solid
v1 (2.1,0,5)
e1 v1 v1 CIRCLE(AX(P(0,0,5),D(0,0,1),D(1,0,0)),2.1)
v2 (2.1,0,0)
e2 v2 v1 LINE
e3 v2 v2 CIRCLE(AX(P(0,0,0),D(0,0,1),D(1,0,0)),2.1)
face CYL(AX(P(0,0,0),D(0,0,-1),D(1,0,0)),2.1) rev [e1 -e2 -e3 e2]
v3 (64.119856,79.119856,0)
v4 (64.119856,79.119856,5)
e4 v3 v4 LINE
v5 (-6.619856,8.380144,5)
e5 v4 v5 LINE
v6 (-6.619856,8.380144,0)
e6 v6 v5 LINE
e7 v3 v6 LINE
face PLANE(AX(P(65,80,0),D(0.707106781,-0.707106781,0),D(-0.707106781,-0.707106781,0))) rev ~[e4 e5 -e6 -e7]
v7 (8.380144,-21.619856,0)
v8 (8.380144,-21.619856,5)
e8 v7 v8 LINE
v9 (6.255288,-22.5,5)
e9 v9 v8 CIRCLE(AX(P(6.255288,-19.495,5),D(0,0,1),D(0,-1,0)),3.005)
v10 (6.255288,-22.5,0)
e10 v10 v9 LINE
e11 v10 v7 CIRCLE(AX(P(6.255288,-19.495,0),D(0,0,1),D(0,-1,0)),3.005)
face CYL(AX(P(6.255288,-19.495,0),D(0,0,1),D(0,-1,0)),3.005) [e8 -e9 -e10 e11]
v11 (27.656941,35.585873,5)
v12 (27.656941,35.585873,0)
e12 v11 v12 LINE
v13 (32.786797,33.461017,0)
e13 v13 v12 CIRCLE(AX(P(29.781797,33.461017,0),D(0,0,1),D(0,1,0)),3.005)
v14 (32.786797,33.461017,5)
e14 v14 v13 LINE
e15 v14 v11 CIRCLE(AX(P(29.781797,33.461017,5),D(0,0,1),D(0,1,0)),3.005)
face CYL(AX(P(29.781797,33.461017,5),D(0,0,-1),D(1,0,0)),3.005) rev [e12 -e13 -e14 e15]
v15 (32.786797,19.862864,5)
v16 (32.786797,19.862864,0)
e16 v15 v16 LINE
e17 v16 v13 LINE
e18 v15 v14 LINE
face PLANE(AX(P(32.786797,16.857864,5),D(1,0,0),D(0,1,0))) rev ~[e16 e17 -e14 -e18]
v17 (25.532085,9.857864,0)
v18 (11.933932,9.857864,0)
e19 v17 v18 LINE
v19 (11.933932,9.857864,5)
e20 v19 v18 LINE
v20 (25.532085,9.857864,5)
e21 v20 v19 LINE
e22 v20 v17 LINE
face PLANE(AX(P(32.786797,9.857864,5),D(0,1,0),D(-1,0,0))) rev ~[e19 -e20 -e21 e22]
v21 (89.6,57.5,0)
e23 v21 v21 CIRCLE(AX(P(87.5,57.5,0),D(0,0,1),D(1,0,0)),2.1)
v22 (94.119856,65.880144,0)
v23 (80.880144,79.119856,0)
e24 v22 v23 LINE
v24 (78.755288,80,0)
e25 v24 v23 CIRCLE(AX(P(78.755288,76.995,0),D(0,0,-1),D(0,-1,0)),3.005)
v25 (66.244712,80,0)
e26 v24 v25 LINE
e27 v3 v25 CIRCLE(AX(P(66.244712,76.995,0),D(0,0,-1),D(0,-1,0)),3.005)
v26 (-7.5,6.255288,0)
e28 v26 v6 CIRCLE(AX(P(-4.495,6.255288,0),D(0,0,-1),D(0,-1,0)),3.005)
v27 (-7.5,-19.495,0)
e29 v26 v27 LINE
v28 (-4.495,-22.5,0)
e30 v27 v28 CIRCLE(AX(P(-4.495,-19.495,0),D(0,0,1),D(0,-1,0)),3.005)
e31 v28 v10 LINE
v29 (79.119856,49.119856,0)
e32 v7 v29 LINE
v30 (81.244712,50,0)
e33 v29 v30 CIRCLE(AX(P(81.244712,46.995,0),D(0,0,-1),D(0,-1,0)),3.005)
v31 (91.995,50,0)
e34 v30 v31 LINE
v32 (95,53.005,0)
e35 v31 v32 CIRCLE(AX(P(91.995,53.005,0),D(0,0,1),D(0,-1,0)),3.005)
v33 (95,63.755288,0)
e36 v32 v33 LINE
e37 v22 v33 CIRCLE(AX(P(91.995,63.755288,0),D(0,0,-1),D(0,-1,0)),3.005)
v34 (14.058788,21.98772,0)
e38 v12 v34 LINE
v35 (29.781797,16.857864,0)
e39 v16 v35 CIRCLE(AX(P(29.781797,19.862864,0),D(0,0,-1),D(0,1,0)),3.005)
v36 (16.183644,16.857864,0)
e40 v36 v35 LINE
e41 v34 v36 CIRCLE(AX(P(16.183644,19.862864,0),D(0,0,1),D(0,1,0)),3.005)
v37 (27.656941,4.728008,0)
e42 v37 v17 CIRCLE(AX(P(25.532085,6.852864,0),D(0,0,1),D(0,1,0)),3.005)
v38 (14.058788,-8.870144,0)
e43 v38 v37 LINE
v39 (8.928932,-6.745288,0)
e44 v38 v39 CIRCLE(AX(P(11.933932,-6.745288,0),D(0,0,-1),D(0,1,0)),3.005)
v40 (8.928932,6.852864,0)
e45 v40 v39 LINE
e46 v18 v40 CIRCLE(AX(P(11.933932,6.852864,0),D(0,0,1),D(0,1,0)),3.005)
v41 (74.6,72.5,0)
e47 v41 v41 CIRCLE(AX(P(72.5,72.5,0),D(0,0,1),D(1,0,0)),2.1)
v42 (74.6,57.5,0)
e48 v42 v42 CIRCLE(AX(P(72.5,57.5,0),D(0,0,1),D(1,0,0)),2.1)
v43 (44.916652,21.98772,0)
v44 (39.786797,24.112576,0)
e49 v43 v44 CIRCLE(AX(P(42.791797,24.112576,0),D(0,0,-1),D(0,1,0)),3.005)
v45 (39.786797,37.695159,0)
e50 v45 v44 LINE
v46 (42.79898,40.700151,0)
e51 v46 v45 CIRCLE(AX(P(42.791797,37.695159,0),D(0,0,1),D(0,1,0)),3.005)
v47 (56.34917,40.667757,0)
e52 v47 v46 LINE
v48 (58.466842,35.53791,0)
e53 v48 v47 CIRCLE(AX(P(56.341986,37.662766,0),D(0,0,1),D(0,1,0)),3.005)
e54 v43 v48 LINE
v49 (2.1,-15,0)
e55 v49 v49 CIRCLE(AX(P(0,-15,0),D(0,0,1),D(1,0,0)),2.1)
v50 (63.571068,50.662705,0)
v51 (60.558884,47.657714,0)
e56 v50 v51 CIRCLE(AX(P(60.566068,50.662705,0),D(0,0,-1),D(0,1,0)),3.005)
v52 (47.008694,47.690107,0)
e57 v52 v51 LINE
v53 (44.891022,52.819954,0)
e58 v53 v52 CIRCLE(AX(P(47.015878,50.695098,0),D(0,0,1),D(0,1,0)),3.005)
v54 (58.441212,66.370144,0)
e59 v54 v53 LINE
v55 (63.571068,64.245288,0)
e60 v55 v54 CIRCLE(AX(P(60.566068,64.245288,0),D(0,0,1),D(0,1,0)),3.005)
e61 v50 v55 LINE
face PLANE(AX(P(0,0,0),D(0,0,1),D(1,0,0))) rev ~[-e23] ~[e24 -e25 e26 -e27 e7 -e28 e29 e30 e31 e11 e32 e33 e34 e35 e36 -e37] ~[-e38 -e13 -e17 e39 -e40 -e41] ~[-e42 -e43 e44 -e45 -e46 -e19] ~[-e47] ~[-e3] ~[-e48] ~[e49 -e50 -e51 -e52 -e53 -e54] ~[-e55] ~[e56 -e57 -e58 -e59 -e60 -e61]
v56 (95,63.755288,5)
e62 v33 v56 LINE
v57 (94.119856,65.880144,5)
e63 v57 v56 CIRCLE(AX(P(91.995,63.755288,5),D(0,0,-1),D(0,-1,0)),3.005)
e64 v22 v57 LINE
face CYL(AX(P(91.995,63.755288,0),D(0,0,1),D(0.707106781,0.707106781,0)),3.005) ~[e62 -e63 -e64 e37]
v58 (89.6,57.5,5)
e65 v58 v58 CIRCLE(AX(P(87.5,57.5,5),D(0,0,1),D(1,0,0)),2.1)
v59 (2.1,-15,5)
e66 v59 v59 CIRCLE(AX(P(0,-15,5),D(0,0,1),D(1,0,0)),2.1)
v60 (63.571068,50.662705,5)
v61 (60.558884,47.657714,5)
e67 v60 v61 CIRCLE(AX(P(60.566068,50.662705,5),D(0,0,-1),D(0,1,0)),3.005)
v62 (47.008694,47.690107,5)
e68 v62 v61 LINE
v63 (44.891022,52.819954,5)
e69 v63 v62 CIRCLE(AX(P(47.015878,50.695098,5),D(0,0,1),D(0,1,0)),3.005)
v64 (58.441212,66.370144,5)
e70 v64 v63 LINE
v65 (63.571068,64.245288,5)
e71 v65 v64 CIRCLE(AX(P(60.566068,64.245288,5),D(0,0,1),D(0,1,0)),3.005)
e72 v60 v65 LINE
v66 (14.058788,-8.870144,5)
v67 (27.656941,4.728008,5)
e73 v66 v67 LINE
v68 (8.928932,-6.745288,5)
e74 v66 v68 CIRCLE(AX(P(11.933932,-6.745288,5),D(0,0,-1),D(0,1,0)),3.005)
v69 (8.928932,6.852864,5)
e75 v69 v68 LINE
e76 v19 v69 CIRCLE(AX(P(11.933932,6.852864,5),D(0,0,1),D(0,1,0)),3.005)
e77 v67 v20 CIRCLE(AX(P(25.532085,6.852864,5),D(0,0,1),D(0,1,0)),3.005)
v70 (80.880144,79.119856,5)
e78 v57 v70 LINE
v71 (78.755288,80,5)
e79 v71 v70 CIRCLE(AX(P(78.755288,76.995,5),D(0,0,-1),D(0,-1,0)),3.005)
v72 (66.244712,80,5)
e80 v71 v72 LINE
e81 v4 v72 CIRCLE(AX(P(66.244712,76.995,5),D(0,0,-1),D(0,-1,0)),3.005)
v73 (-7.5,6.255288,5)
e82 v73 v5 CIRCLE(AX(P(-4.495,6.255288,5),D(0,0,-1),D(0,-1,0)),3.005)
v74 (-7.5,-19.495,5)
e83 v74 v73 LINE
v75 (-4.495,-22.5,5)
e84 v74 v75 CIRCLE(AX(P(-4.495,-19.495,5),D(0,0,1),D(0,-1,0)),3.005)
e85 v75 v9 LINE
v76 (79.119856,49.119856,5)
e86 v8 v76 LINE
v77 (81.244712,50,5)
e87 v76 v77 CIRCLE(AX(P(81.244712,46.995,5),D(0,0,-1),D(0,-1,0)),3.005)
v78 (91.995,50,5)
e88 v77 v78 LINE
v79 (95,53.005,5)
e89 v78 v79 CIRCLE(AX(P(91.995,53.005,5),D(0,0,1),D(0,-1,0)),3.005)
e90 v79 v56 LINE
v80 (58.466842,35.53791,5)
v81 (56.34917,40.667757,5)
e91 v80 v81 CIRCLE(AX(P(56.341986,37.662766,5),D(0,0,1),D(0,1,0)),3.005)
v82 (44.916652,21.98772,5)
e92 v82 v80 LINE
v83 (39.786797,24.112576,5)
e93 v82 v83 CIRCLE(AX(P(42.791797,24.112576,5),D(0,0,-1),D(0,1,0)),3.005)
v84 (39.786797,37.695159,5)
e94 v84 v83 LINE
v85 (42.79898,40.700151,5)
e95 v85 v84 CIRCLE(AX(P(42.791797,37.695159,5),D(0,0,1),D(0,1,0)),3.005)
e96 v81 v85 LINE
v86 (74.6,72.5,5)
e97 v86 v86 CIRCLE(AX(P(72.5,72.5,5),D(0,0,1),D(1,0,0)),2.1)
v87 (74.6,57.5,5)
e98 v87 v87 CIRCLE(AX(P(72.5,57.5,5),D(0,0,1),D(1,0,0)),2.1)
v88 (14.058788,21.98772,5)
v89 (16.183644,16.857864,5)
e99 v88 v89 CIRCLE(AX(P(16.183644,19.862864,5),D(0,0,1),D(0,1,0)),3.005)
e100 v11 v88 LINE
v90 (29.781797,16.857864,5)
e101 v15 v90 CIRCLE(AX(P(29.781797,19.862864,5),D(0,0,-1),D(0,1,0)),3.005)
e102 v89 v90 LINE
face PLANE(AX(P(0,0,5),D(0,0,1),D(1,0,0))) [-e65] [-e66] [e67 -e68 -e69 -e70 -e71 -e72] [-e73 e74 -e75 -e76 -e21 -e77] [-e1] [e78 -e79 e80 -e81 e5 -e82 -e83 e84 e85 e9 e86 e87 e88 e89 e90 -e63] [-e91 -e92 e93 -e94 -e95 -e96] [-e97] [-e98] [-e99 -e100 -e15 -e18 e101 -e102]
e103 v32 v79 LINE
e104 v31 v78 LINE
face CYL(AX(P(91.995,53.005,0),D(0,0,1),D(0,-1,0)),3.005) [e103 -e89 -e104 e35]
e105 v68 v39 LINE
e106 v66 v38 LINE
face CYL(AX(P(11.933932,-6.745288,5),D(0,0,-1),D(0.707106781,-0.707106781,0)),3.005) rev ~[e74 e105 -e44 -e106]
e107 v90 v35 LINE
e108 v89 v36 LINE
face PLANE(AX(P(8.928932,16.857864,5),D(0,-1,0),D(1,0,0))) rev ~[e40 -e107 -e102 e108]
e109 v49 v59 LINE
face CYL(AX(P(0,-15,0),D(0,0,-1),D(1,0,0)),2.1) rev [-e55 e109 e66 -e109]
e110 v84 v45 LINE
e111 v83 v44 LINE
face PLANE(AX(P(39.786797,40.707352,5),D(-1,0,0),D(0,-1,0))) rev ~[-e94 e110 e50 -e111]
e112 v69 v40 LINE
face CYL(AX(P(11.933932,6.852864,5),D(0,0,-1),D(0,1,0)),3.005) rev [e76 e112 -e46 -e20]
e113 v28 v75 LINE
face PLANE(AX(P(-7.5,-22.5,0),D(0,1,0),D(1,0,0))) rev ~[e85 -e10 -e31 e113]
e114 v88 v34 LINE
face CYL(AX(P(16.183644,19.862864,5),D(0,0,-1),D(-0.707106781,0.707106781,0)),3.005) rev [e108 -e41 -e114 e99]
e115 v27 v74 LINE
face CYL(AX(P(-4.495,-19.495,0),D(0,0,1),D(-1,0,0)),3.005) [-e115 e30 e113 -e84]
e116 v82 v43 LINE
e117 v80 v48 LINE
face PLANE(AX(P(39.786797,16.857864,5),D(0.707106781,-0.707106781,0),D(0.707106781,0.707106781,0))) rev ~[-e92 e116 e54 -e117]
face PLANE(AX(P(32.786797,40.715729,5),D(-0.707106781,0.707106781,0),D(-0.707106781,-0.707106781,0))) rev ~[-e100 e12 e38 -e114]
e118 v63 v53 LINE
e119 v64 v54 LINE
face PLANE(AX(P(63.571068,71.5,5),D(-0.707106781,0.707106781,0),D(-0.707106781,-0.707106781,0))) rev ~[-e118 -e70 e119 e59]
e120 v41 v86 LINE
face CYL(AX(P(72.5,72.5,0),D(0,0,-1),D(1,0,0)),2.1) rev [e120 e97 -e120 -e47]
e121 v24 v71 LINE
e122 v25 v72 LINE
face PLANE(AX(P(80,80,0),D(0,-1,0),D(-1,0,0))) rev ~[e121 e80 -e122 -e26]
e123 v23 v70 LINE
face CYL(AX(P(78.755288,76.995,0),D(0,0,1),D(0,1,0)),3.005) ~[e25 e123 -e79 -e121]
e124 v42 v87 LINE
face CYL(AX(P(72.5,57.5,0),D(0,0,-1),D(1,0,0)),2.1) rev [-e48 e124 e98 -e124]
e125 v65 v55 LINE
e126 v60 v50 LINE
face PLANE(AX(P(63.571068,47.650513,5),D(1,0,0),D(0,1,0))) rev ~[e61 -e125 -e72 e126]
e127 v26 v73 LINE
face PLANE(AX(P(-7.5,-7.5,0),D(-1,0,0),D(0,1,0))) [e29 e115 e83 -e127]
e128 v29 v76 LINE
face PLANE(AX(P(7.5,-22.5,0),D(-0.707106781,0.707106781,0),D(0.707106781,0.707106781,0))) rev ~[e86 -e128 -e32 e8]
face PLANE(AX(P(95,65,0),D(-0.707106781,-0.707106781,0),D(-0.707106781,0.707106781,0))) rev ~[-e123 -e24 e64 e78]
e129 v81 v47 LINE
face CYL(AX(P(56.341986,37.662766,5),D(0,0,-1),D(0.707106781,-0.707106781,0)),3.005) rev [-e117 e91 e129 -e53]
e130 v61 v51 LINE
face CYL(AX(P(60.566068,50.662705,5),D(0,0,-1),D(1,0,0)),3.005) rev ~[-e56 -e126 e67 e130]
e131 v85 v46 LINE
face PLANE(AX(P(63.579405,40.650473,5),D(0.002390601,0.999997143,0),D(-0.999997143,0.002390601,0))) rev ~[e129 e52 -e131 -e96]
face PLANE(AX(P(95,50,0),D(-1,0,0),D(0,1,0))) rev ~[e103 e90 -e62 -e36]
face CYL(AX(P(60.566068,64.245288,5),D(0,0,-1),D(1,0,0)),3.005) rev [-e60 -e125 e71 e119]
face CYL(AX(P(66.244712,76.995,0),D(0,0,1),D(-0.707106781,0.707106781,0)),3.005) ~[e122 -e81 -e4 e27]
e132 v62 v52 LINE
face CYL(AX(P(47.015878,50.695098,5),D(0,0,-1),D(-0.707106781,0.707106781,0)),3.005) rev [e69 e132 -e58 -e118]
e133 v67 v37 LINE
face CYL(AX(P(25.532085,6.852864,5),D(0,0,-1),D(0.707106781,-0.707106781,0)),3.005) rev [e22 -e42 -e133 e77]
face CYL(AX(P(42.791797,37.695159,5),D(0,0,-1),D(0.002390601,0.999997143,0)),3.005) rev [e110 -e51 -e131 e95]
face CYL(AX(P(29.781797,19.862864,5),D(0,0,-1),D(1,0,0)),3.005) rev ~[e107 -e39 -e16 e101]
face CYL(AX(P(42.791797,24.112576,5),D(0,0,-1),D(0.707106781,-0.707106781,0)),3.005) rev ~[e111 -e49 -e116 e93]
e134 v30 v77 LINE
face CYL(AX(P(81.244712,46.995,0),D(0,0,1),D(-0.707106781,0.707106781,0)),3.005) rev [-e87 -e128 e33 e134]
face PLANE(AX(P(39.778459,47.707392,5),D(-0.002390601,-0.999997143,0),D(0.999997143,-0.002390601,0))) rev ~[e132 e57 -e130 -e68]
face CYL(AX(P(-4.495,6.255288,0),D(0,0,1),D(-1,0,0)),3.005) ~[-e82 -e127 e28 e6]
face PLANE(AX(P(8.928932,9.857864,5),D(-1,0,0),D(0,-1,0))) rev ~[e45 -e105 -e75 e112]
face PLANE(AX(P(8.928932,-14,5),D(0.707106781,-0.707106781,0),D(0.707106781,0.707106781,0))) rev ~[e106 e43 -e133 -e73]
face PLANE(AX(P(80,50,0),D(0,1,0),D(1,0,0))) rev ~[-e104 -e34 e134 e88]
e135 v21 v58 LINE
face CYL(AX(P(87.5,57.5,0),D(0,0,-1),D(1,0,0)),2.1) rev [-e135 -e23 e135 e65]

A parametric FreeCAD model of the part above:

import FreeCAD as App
import Part
import Sketcher

V = App.Vector
Q = App.Units.Quantity


def edges_at(feature, points):
    """Names of the edges that pass closest to the given points."""
    edges = feature.Shape.Edges
    near = lambda p: min(range(len(edges)), key=lambda i: edges[i].distToShape(Part.Vertex(*p))[0])
    return sorted({f"Edge{near(p) + 1}" for p in points})

doc = App.newDocument("Part")
params = doc.addObject("Spreadsheet::Sheet", "Params")
for row, (alias, value) in enumerate([
    ("sketch1_diameter", "4.2 mm"),
    ("sketch1_width", "15 mm"),
    ("sketch1_height", "30 mm"),
    ("pad1_length", "5 mm"),
    ("fillet_radius", "3.005 mm"),
    ("fillet2_radius", "3.005 mm"),
], start=1):
    params.set(f"A{row}", alias)
    params.set(f"B{row}", "=" + value)
    params.setAlias(f"B{row}", alias)

body = doc.addObject("PartDesign::Body", "Body")

# Sketch on XY plane
sketch1 = body.newObject("Sketcher::SketchObject", "Sketch")
sketch1.AttachmentSupport = (doc.getObject("XY_Plane"), [""])
sketch1.MapMode = "FlatFace"
sketch1.addGeometry(Part.LineSegment(V(7.5, -22.5, 0), V(80, 50, 0)), False)
sketch1.addGeometry(Part.LineSegment(V(80, 50, 0), V(95, 50, 0)), False)
sketch1.addGeometry(Part.LineSegment(V(95, 50, 0), V(95, 65, 0)), False)
sketch1.addGeometry(Part.LineSegment(V(95, 65, 0), V(80, 80, 0)), False)
sketch1.addGeometry(Part.LineSegment(V(80, 80, 0), V(65, 80, 0)), False)
sketch1.addGeometry(Part.LineSegment(V(65, 80, 0), V(-7.5, 7.5, 0)), False)
sketch1.addGeometry(Part.LineSegment(V(-7.5, 7.5, 0), V(-7.5, -22.5, 0)), False)
sketch1.addGeometry(Part.LineSegment(V(-7.5, -22.5, 0), V(7.5, -22.5, 0)), False)
sketch1.addGeometry(Part.Circle(V(72.5, 57.5, 0), V(0, 0, 1), 2.1), False)
sketch1.addGeometry(Part.Circle(V(87.5, 57.5, 0), V(0, 0, 1), 2.1), False)
sketch1.addGeometry(Part.Circle(V(72.5, 72.5, 0), V(0, 0, 1), 2.1), False)
sketch1.addGeometry(Part.Circle(V(0, 0, 0), V(0, 0, 1), 2.1), False)
sketch1.addGeometry(Part.Circle(V(0, -15, 0), V(0, 0, 1), 2.1), False)
sketch1.addConstraint(Sketcher.Constraint("Coincident", 0, 2, 1, 1))
sketch1.addConstraint(Sketcher.Constraint("Coincident", 1, 2, 2, 1))
sketch1.addConstraint(Sketcher.Constraint("Coincident", 2, 2, 3, 1))
sketch1.addConstraint(Sketcher.Constraint("Coincident", 3, 2, 4, 1))
sketch1.addConstraint(Sketcher.Constraint("Coincident", 4, 2, 5, 1))
sketch1.addConstraint(Sketcher.Constraint("Coincident", 5, 2, 6, 1))
sketch1.addConstraint(Sketcher.Constraint("Coincident", 6, 2, 7, 1))
sketch1.addConstraint(Sketcher.Constraint("Coincident", 7, 2, 0, 1))
sketch1.addConstraint(Sketcher.Constraint("Horizontal", 1))
sketch1.addConstraint(Sketcher.Constraint("Vertical", 2))
sketch1.addConstraint(Sketcher.Constraint("Horizontal", 4))
sketch1.addConstraint(Sketcher.Constraint("Vertical", 6))
sketch1.addConstraint(Sketcher.Constraint("Horizontal", 7))
sketch1.addConstraint(Sketcher.Constraint("Coincident", 11, 3, -1, 1))
sketch1.addConstraint(Sketcher.Constraint("Equal", 8, 9))
sketch1.addConstraint(Sketcher.Constraint("Equal", 9, 10))
sketch1.addConstraint(Sketcher.Constraint("Equal", 10, 11))
sketch1.addConstraint(Sketcher.Constraint("Equal", 11, 12))
sketch1.addConstraint(Sketcher.Constraint("PointOnObject", 12, 3, -2))
sketch1.addConstraint(Sketcher.Constraint("Perpendicular", 0, 3))
sketch1.addConstraint(Sketcher.Constraint("Perpendicular", 3, 5))
sketch1.addConstraint(Sketcher.Constraint("Horizontal", 8, 3, 9, 3))
sketch1.addConstraint(Sketcher.Constraint("Vertical", 8, 3, 10, 3))
sketch1.addConstraint(Sketcher.Constraint("Vertical", 0, 2, 3, 2))
sketch1.addConstraint(Sketcher.Constraint("Equal", 1, 4))
sketch1.addConstraint(Sketcher.Constraint("Equal", 4, 7))
sketch1.addConstraint(Sketcher.Constraint("Equal", 7, 2))
sketch1.addConstraint(Sketcher.Constraint("Diameter", 8, Q("4.2 mm")))
sketch1.addConstraint(Sketcher.Constraint("DistanceX", 1, 1, 1, 2, Q("15 mm")))
sketch1.addConstraint(Sketcher.Constraint("DistanceY", 6, 2, 6, 1, Q("30 mm")))
sketch1.addConstraint(Sketcher.Constraint("DistanceY", 12, 3, -1, 1, Q("15 mm")))
sketch1.addConstraint(Sketcher.Constraint("DistanceX", -1, 1, 0, 2, Q("80 mm")))
sketch1.addConstraint(Sketcher.Constraint("DistanceY", -1, 1, 0, 2, Q("50 mm")))
sketch1.addConstraint(Sketcher.Constraint("DistanceX", 8, 3, 9, 3, Q("15 mm")))
sketch1.addConstraint(Sketcher.Constraint("DistanceY", 8, 3, 10, 3, Q("15 mm")))
sketch1.addConstraint(Sketcher.Constraint("DistanceX", 5, 2, 8, 3, Q("80 mm")))
sketch1.addConstraint(Sketcher.Constraint("DistanceY", 5, 2, 8, 3, Q("50 mm")))
sketch1.addConstraint(Sketcher.Constraint("DistanceX", -1, 1, 8, 3, Q("72.5 mm")))
sketch1.setExpression("Constraints[27]", "Params.sketch1_diameter")
sketch1.setExpression("Constraints[28]", "Params.sketch1_width")
sketch1.setExpression("Constraints[29]", "Params.sketch1_height")
pad1 = body.newObject("PartDesign::Pad", "Pad")
pad1.Profile = sketch1
pad1.setExpression("Length", "Params.pad1_length")

# Sketch on XY plane
sketch2 = body.newObject("Sketcher::SketchObject", "Sketch001")
sketch2.AttachmentSupport = (doc.getObject("XY_Plane"), [""])
sketch2.MapMode = "FlatFace"
sketch2.AttachmentOffset = App.Placement(V(0, 0, 5), App.Rotation())
sketch2.addGeometry(Part.LineSegment(V(9, -14, 0), V(33, 10, 0)), False)
sketch2.addGeometry(Part.LineSegment(V(33, 10, 0), V(9, 10, 0)), False)
sketch2.addGeometry(Part.LineSegment(V(9, 10, 0), V(9, -14, 0)), False)
sketch2.addGeometry(Part.LineSegment(V(33, 17, 0), V(33, 41, 0)), False)
sketch2.addGeometry(Part.LineSegment(V(33, 41, 0), V(9, 17, 0)), False)
sketch2.addGeometry(Part.LineSegment(V(9, 17, 0), V(33, 17, 0)), False)
sketch2.addGeometry(Part.LineSegment(V(40, 17, 0), V(64, 41, 0)), False)
sketch2.addGeometry(Part.LineSegment(V(64, 41, 0), V(40, 41, 0)), False)
sketch2.addGeometry(Part.LineSegment(V(40, 41, 0), V(40, 17, 0)), False)
sketch2.addGeometry(Part.LineSegment(V(64, 48, 0), V(64, 72, 0)), False)
sketch2.addGeometry(Part.LineSegment(V(64, 72, 0), V(40, 48, 0)), False)
sketch2.addGeometry(Part.LineSegment(V(40, 48, 0), V(64, 48, 0)), False)
sketch2.addConstraint(Sketcher.Constraint("Coincident", 0, 2, 1, 1))
sketch2.addConstraint(Sketcher.Constraint("Coincident", 1, 2, 2, 1))
sketch2.addConstraint(Sketcher.Constraint("Coincident", 2, 2, 0, 1))
sketch2.addConstraint(Sketcher.Constraint("Coincident", 3, 2, 4, 1))
sketch2.addConstraint(Sketcher.Constraint("Coincident", 4, 2, 5, 1))
sketch2.addConstraint(Sketcher.Constraint("Coincident", 5, 2, 3, 1))
sketch2.addConstraint(Sketcher.Constraint("Coincident", 6, 2, 7, 1))
sketch2.addConstraint(Sketcher.Constraint("Coincident", 7, 2, 8, 1))
sketch2.addConstraint(Sketcher.Constraint("Coincident", 8, 2, 6, 1))
sketch2.addConstraint(Sketcher.Constraint("Coincident", 9, 2, 10, 1))
sketch2.addConstraint(Sketcher.Constraint("Coincident", 10, 2, 11, 1))
sketch2.addConstraint(Sketcher.Constraint("Coincident", 11, 2, 9, 1))
sketch2.addConstraint(Sketcher.Constraint("Horizontal", 1))
sketch2.addConstraint(Sketcher.Constraint("Vertical", 2))
sketch2.addConstraint(Sketcher.Constraint("Vertical", 3))
sketch2.addConstraint(Sketcher.Constraint("Horizontal", 5))
sketch2.addConstraint(Sketcher.Constraint("Vertical", 8))
sketch2.addConstraint(Sketcher.Constraint("Vertical", 9))
sketch2.addConstraint(Sketcher.Constraint("Parallel", 0, 4))
sketch2.addConstraint(Sketcher.Constraint("Parallel", 4, 6))
sketch2.addConstraint(Sketcher.Constraint("Parallel", 6, 10))
sketch2.addConstraint(Sketcher.Constraint("Parallel", 7, 11))
sketch2.addConstraint(Sketcher.Constraint("Horizontal", 5, 2, 8, 2))
sketch2.addConstraint(Sketcher.Constraint("Vertical", 0, 2, 3, 2))
sketch2.addConstraint(Sketcher.Constraint("Vertical", 2, 2, 4, 2))
sketch2.addConstraint(Sketcher.Constraint("Equal", 5, 2))
sketch2.addConstraint(Sketcher.Constraint("Equal", 8, 9))
sketch2.addConstraint(Sketcher.Constraint("DistanceY", 2, 2, -1, 1, Q("14 mm")))
sketch2.addConstraint(Sketcher.Constraint("DistanceY", 1, 2, 4, 2, Q("7 mm")))
sketch2.addConstraint(Sketcher.Constraint("DistanceX", 3, 2, 7, 2, Q("7 mm")))
sketch2.addConstraint(Sketcher.Constraint("DistanceY", -1, 1, 9, 2, Q("71.5 mm")))
sketch2.addConstraint(Sketcher.Constraint("Distance", 6, Q("33.64783 mm")))
sketch2.addConstraint(Sketcher.Constraint("DistanceX", 1, 2, 1, 1, Q("23.857864 mm")))
sketch2.addConstraint(Sketcher.Constraint("DistanceY", 8, 2, 8, 1, Q("23.849487 mm")))
sketch2.addConstraint(Sketcher.Constraint("DistanceX", -1, 1, 10, 2, Q("39.778459 mm")))
sketch2.addConstraint(Sketcher.Constraint("DistanceX", 7, 2, 9, 2, Q("23.784271 mm")))
pocket1 = body.newObject("PartDesign::Pocket", "Pocket")
pocket1.Profile = sketch2
pocket1.Type = "ThroughAll"
doc.recompute()

fillet = body.newObject("PartDesign::Fillet", "Fillet")
fillet.Base = (pocket1, edges_at(pocket1, [
    (8.929, 9.858, 2.5),
    (32.787, 9.858, 2.5),
    (8.929, -14, 2.5),
    (32.787, 16.858, 2.5),
    (8.929, 16.858, 2.5),
    (32.787, 40.716, 2.5),
    (39.787, 40.707, 2.5),
    (63.579, 40.65, 2.5),
    (39.787, 16.858, 2.5),
    (63.571, 71.5, 2.5),
    (63.571, 47.651, 2.5),
    (39.778, 47.707, 2.5),
]))
fillet.setExpression("Radius", "Params.fillet_radius")
doc.recompute()

fillet2 = body.newObject("PartDesign::Fillet", "Fillet001")
fillet2.Base = (fillet, edges_at(fillet, [
    (-7.5, 7.5, 2.5),
    (65, 80, 2.5),
    (80, 80, 2.5),
    (95, 65, 2.5),
    (95, 50, 2.5),
    (80, 50, 2.5),
    (7.5, -22.5, 2.5),
    (-7.5, -22.5, 2.5),
]))
fillet2.setExpression("Radius", "Params.fillet2_radius")

doc.recompute()
